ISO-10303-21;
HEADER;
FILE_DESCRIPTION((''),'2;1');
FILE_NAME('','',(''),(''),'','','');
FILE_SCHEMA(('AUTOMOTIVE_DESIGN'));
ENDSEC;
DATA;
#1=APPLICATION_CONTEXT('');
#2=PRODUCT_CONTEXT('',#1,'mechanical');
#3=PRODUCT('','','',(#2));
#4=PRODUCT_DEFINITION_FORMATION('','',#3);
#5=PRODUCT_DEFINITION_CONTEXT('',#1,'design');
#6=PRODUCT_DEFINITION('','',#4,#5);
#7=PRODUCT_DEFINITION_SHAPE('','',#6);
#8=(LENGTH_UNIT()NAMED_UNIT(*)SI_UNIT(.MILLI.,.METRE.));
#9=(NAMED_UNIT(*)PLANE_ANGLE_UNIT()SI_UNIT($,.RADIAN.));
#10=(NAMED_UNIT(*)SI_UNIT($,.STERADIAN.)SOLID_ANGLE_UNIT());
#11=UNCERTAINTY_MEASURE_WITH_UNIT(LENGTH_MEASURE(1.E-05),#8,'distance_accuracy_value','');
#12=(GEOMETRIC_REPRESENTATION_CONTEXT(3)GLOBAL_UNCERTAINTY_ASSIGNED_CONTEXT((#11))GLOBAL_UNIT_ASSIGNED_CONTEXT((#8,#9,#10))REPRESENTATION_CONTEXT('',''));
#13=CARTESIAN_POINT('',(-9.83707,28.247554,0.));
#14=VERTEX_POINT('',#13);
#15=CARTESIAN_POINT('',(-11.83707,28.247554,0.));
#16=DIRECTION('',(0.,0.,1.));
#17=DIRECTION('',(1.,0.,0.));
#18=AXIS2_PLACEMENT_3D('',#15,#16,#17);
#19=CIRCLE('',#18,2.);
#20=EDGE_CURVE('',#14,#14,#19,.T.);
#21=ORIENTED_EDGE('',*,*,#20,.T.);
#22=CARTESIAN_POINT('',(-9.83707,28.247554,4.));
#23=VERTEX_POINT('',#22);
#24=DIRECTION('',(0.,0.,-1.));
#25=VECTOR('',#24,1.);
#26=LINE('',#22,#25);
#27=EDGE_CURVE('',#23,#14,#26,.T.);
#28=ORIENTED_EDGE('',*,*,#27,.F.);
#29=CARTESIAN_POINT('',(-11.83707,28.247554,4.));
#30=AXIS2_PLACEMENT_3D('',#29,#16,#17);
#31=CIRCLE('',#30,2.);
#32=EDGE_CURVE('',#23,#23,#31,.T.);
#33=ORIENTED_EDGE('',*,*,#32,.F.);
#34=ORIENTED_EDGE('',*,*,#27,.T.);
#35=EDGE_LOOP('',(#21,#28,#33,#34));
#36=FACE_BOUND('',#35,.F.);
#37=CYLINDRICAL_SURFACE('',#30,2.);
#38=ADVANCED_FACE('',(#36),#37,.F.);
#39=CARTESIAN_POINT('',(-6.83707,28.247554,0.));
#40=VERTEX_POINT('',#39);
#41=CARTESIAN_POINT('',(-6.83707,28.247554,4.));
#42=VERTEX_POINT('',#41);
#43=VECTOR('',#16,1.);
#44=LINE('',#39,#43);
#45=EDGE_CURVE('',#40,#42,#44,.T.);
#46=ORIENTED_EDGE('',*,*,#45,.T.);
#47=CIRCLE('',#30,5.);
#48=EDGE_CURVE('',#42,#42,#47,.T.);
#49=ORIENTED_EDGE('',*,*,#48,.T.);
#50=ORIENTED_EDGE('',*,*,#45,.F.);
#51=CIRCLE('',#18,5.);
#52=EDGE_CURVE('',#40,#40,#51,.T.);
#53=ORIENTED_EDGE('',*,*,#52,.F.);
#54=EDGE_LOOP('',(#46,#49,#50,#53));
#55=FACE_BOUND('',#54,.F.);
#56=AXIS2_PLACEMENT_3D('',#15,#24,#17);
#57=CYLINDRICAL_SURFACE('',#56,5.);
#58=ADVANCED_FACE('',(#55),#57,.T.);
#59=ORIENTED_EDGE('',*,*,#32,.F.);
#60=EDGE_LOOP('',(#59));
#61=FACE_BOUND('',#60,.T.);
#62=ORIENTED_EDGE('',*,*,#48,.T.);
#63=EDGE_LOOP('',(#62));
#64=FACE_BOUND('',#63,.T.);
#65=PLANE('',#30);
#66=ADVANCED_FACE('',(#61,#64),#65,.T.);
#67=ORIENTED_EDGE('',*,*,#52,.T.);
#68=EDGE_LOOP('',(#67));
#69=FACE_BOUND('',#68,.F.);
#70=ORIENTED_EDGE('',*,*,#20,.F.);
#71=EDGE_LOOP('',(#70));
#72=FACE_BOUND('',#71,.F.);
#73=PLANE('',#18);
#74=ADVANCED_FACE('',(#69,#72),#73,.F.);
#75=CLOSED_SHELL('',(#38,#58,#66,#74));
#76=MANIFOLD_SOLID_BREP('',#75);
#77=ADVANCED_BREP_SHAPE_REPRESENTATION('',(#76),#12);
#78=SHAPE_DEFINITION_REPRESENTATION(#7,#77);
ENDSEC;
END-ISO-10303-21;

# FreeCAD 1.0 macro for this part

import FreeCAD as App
import Part
import Sketcher

doc = App.newDocument("Part")
body = doc.addObject("PartDesign::Body", "Body")

# Sketch on XY plane
sketch1 = doc.addObject("Sketcher::SketchObject", "Sketch")
body.addObject(sketch1)
sketch1.AttachmentSupport = (doc.XY_Plane, [""])
sketch1.MapMode = "FlatFace"
sketch1.addGeometry(Part.Circle(App.Vector(-12, 28, 0), App.Vector(0, 0, 1), 5), False)
sketch1.addConstraint([
    Sketcher.Constraint("Diameter", 0, 10.0),
    Sketcher.Constraint("DistanceX", 0, 3, -1, 1, 11.83707),
    Sketcher.Constraint("DistanceY", -1, 1, 0, 3, 28.247554),
])
pad1 = doc.addObject("PartDesign::Pad", "Pad")
body.addObject(pad1)
pad1.Profile = sketch1
pad1.Length = 4

# Sketch on XY plane
sketch2 = doc.addObject("Sketcher::SketchObject", "Sketch001")
body.addObject(sketch2)
sketch2.AttachmentSupport = (doc.XY_Plane, [""])
sketch2.MapMode = "FlatFace"
sketch2.AttachmentOffset = App.Placement(App.Vector(0, 0, 4), App.Rotation())
sketch2.addGeometry(Part.Circle(App.Vector(-11.8, 28.2, 0), App.Vector(0, 0, 1), 2), False)
sketch2.addConstraint([
    Sketcher.Constraint("Diameter", 0, 4.0),
    Sketcher.Constraint("DistanceX", 0, 3, -1, 1, 11.83707),
    Sketcher.Constraint("DistanceY", -1, 1, 0, 3, 28.247554),
])
pocket1 = doc.addObject("PartDesign::Pocket", "Pocket")
body.addObject(pocket1)
pocket1.Profile = sketch2
pocket1.Type = "ThroughAll"

doc.recompute()
